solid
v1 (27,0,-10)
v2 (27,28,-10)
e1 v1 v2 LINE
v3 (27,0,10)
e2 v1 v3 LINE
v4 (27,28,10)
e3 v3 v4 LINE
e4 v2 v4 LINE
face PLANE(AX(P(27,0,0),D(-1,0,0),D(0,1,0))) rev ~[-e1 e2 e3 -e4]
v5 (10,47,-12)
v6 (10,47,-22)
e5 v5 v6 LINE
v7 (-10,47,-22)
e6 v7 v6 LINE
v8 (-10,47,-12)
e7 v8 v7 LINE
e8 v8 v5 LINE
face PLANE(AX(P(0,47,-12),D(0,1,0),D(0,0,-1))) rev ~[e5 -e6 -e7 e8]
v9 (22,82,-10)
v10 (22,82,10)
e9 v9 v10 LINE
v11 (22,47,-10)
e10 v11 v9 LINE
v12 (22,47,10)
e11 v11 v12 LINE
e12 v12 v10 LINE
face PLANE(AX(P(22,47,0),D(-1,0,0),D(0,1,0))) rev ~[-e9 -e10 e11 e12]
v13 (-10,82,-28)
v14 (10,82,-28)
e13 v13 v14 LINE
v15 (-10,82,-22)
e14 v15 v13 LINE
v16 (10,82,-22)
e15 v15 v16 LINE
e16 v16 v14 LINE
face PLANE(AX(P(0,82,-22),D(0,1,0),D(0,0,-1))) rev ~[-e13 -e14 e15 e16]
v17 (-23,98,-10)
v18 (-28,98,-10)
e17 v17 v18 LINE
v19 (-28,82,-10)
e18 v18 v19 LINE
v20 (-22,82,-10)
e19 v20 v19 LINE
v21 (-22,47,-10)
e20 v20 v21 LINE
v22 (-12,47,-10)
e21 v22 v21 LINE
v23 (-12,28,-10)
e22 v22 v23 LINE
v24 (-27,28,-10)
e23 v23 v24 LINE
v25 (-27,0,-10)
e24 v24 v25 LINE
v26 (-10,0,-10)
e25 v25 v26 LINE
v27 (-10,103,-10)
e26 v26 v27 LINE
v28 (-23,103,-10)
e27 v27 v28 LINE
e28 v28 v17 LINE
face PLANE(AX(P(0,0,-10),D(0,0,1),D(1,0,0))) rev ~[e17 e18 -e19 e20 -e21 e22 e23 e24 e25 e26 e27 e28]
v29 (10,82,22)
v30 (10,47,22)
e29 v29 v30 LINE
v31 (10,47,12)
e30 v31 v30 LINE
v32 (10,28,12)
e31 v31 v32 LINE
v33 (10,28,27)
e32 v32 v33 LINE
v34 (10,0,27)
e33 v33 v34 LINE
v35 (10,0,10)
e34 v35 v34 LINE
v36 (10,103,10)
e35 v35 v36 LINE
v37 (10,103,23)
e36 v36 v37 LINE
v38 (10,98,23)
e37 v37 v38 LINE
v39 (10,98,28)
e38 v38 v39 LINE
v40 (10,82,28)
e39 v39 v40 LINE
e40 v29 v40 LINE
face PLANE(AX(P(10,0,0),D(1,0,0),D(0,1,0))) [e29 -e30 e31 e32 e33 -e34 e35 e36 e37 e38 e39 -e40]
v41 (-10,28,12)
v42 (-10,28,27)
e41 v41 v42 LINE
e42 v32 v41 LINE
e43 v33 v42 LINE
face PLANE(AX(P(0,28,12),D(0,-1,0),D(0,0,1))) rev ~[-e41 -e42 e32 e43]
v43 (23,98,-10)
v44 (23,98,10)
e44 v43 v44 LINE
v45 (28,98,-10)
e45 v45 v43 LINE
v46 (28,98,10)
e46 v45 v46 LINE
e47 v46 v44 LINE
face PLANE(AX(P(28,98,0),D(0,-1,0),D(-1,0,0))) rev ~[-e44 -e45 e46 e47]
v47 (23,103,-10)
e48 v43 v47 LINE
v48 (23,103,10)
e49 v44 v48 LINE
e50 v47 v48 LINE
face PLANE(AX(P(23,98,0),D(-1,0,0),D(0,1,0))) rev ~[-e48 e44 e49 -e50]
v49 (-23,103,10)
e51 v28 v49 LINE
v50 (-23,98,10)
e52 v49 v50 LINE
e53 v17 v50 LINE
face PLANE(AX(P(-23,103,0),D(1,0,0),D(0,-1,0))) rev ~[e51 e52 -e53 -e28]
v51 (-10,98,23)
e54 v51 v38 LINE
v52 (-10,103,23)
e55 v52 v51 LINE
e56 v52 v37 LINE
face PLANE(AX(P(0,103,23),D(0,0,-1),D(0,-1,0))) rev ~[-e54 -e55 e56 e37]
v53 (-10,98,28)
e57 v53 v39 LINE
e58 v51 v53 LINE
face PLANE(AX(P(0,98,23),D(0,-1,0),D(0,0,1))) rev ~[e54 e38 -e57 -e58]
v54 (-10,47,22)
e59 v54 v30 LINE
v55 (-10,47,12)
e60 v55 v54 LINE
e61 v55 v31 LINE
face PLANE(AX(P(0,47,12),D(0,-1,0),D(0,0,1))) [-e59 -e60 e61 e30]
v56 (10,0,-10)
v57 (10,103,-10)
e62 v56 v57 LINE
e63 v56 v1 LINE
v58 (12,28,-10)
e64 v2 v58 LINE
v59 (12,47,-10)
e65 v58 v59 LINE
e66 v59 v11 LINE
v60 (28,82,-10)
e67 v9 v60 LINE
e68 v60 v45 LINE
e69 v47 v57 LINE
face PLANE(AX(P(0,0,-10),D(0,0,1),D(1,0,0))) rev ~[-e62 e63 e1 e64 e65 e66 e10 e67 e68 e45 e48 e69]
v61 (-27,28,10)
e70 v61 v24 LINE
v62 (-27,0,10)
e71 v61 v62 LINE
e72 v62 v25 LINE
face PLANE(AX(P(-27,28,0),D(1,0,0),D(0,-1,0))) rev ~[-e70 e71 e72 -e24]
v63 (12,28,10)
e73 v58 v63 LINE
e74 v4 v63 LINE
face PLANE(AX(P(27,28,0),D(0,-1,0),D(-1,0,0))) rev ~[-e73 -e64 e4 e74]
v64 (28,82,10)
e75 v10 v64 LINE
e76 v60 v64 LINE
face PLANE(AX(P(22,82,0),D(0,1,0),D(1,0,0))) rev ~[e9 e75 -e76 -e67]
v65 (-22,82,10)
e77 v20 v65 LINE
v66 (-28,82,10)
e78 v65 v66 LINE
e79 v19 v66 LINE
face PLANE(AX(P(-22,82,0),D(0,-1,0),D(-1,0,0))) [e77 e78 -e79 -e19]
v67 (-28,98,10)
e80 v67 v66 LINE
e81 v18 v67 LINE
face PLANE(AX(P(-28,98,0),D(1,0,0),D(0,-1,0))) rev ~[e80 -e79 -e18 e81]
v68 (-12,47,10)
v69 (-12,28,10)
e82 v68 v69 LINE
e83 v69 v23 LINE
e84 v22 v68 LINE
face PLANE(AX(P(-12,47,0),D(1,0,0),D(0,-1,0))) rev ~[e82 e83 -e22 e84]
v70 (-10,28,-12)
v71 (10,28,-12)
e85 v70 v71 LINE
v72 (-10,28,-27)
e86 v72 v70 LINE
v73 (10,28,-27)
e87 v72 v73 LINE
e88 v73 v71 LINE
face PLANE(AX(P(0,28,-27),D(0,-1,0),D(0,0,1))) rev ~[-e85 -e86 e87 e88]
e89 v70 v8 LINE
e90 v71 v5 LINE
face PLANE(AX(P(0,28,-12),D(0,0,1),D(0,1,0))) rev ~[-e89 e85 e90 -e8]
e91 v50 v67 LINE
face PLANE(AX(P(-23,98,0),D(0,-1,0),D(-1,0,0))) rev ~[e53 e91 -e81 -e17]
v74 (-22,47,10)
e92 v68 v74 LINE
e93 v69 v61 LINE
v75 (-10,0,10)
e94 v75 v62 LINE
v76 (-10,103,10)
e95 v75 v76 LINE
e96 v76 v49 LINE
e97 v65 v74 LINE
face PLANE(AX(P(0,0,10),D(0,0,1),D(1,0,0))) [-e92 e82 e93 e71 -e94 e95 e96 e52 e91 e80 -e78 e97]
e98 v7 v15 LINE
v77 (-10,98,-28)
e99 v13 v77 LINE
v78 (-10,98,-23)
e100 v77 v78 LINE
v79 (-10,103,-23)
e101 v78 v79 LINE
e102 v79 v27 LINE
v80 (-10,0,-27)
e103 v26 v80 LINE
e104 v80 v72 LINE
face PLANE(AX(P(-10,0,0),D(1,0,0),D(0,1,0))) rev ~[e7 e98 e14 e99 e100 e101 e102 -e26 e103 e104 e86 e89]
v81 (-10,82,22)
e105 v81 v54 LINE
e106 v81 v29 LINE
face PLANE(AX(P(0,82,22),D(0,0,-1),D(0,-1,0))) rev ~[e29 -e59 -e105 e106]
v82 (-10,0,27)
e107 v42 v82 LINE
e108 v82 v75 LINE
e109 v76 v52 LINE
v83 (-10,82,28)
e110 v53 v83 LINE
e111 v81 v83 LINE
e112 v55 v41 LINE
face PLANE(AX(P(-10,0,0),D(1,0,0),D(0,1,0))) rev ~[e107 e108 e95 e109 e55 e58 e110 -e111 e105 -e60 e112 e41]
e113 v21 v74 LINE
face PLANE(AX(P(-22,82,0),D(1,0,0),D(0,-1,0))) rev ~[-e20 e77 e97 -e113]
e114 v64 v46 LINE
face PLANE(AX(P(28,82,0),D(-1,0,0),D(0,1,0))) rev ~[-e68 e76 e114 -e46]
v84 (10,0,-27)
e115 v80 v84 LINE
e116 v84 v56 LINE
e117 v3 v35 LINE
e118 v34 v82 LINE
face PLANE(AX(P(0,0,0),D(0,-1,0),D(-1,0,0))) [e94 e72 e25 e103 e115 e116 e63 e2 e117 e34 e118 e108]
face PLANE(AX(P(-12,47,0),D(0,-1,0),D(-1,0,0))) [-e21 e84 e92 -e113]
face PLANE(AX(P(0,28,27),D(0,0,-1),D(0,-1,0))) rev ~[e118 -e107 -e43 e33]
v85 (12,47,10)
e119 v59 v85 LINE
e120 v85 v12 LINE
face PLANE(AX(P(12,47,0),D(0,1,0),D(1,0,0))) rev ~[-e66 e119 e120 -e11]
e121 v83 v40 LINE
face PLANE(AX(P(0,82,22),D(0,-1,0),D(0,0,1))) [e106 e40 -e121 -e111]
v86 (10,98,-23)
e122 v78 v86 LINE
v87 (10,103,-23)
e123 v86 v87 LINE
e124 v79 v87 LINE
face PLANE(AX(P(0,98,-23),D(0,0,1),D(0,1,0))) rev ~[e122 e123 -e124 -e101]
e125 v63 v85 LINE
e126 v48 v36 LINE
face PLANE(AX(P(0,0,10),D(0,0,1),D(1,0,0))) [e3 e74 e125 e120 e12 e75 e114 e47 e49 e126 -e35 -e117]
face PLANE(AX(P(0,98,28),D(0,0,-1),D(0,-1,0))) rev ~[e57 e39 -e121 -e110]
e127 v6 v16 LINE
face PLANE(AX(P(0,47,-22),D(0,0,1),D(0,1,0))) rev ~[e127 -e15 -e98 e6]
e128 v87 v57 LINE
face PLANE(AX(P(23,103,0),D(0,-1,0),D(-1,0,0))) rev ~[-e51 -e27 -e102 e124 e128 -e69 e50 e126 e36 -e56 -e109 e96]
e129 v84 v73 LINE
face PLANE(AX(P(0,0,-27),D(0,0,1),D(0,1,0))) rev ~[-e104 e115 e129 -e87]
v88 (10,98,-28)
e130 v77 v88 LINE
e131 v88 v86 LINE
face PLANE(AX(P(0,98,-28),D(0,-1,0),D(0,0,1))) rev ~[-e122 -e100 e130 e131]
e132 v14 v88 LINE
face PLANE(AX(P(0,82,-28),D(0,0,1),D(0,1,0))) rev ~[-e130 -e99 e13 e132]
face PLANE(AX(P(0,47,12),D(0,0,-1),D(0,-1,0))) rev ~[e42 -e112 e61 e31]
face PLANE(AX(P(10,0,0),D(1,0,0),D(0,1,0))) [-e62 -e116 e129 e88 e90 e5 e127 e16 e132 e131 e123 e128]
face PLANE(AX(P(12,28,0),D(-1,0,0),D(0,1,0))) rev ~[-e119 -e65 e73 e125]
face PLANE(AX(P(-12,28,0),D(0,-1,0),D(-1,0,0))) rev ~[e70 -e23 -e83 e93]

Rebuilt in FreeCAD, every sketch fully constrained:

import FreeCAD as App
import Part
import Sketcher
from FreeCAD import Vector

doc = App.newDocument("Part")
body = doc.addObject("PartDesign::Body", "Body")

# Sketch on XY plane
sketch1 = doc.addObject("Sketcher::SketchObject", "Sketch")
body.addObject(sketch1)
sketch1.AttachmentSupport = (doc.XY_Plane, [""])
sketch1.MapMode = "FlatFace"
sketch1.addGeometry([
    Part.LineSegment(Vector(-27, 0, 0), Vector(27, 0, 0)),  # 0
    Part.LineSegment(Vector(27, 0, 0), Vector(27, 28, 0)),  # 1
    Part.LineSegment(Vector(27, 28, 0), Vector(12, 28, 0)),  # 2
    Part.LineSegment(Vector(12, 28, 0), Vector(12, 47, 0)),  # 3
    Part.LineSegment(Vector(12, 47, 0), Vector(22, 47, 0)),  # 4
    Part.LineSegment(Vector(22, 47, 0), Vector(22, 82, 0)),  # 5
    Part.LineSegment(Vector(22, 82, 0), Vector(28, 82, 0)),  # 6
    Part.LineSegment(Vector(28, 82, 0), Vector(28, 98, 0)),  # 7
    Part.LineSegment(Vector(28, 98, 0), Vector(23, 98, 0)),  # 8
    Part.LineSegment(Vector(23, 98, 0), Vector(23, 103, 0)),  # 9
    Part.LineSegment(Vector(23, 103, 0), Vector(-23, 103, 0)),  # 10
    Part.LineSegment(Vector(-23, 103, 0), Vector(-23, 98, 0)),  # 11
    Part.LineSegment(Vector(-23, 98, 0), Vector(-28, 98, 0)),  # 12
    Part.LineSegment(Vector(-28, 98, 0), Vector(-28, 82, 0)),  # 13
    Part.LineSegment(Vector(-28, 82, 0), Vector(-22, 82, 0)),  # 14
    Part.LineSegment(Vector(-22, 82, 0), Vector(-22, 47, 0)),  # 15
    Part.LineSegment(Vector(-22, 47, 0), Vector(-12, 47, 0)),  # 16
    Part.LineSegment(Vector(-12, 47, 0), Vector(-12, 28, 0)),  # 17
    Part.LineSegment(Vector(-12, 28, 0), Vector(-27, 28, 0)),  # 18
    Part.LineSegment(Vector(-27, 28, 0), Vector(-27, 0, 0)),  # 19
], False)
sketch1.addConstraint([
    Sketcher.Constraint("Coincident", 0, 2, 1, 1),
    Sketcher.Constraint("Coincident", 1, 2, 2, 1),
    Sketcher.Constraint("Coincident", 2, 2, 3, 1),
    Sketcher.Constraint("Coincident", 3, 2, 4, 1),
    Sketcher.Constraint("Coincident", 4, 2, 5, 1),
    Sketcher.Constraint("Coincident", 5, 2, 6, 1),
    Sketcher.Constraint("Coincident", 6, 2, 7, 1),
    Sketcher.Constraint("Coincident", 7, 2, 8, 1),
    Sketcher.Constraint("Coincident", 8, 2, 9, 1),
    Sketcher.Constraint("Coincident", 9, 2, 10, 1),
    Sketcher.Constraint("Coincident", 10, 2, 11, 1),
    Sketcher.Constraint("Coincident", 11, 2, 12, 1),
    Sketcher.Constraint("Coincident", 12, 2, 13, 1),
    Sketcher.Constraint("Coincident", 13, 2, 14, 1),
    Sketcher.Constraint("Coincident", 14, 2, 15, 1),
    Sketcher.Constraint("Coincident", 15, 2, 16, 1),
    Sketcher.Constraint("Coincident", 16, 2, 17, 1),
    Sketcher.Constraint("Coincident", 17, 2, 18, 1),
    Sketcher.Constraint("Coincident", 18, 2, 19, 1),
    Sketcher.Constraint("Coincident", 19, 2, 0, 1),
    Sketcher.Constraint("Horizontal", 0),
    Sketcher.Constraint("Vertical", 1),
    Sketcher.Constraint("Horizontal", 2),
    Sketcher.Constraint("Vertical", 3),
    Sketcher.Constraint("Horizontal", 4),
    Sketcher.Constraint("Vertical", 5),
    Sketcher.Constraint("Horizontal", 6),
    Sketcher.Constraint("Vertical", 7),
    Sketcher.Constraint("Horizontal", 8),
    Sketcher.Constraint("Vertical", 9),
    Sketcher.Constraint("Horizontal", 10),
    Sketcher.Constraint("Vertical", 11),
    Sketcher.Constraint("Horizontal", 12),
    Sketcher.Constraint("Vertical", 13),
    Sketcher.Constraint("Horizontal", 14),
    Sketcher.Constraint("Vertical", 15),
    Sketcher.Constraint("Horizontal", 16),
    Sketcher.Constraint("Vertical", 17),
    Sketcher.Constraint("Horizontal", 18),
    Sketcher.Constraint("Vertical", 19),
    Sketcher.Constraint("Symmetric", 0, 2, 19, 2, -1, 1),
    Sketcher.Constraint("Symmetric", 8, 2, 11, 2, -2),
    Sketcher.Constraint("Symmetric", 6, 2, 13, 2, -2),
    Sketcher.Constraint("Symmetric", 4, 2, 15, 2, -2),
    Sketcher.Constraint("Symmetric", 2, 2, 17, 2, -2),
    Sketcher.Constraint("Equal", 12, 9),
    Sketcher.Constraint("DistanceX", 0, 1, 0, 2, 54.0),
    Sketcher.Constraint("DistanceX", 6, 1, 6, 2, 6.0),
    Sketcher.Constraint("DistanceX", 8, 2, 8, 1, 5.0),
    Sketcher.Constraint("DistanceX", 10, 2, 10, 1, 46.0),
    Sketcher.Constraint("DistanceY", 1, 1, 1, 2, 28.0),
    Sketcher.Constraint("DistanceY", 3, 1, 3, 2, 19.0),
    Sketcher.Constraint("DistanceY", 5, 1, 5, 2, 35.0),
    Sketcher.Constraint("DistanceY", 7, 1, 7, 2, 16.0),
    Sketcher.Constraint("DistanceX", -1, 1, 2, 2, 12.0),
])
pad1 = doc.addObject("PartDesign::Pad", "Pad")
body.addObject(pad1)
pad1.Profile = sketch1
pad1.Length = 20
pad1.Midplane = True

# Sketch on YZ plane
sketch2 = doc.addObject("Sketcher::SketchObject", "Sketch001")
body.addObject(sketch2)
sketch2.AttachmentSupport = (doc.YZ_Plane, [""])
sketch2.MapMode = "FlatFace"
sketch2.addGeometry([
    Part.LineSegment(Vector(0, 27, 0), Vector(0, -27, 0)),  # 0
    Part.LineSegment(Vector(0, -27, 0), Vector(28, -27, 0)),  # 1
    Part.LineSegment(Vector(28, -27, 0), Vector(28, -12, 0)),  # 2
    Part.LineSegment(Vector(28, -12, 0), Vector(47, -12, 0)),  # 3
    Part.LineSegment(Vector(47, -12, 0), Vector(47, -22, 0)),  # 4
    Part.LineSegment(Vector(47, -22, 0), Vector(82, -22, 0)),  # 5
    Part.LineSegment(Vector(82, -22, 0), Vector(82, -28, 0)),  # 6
    Part.LineSegment(Vector(82, -28, 0), Vector(98, -28, 0)),  # 7
    Part.LineSegment(Vector(98, -28, 0), Vector(98, -23, 0)),  # 8
    Part.LineSegment(Vector(98, -23, 0), Vector(103, -23, 0)),  # 9
    Part.LineSegment(Vector(103, -23, 0), Vector(103, 23, 0)),  # 10
    Part.LineSegment(Vector(103, 23, 0), Vector(98, 23, 0)),  # 11
    Part.LineSegment(Vector(98, 23, 0), Vector(98, 28, 0)),  # 12
    Part.LineSegment(Vector(98, 28, 0), Vector(82, 28, 0)),  # 13
    Part.LineSegment(Vector(82, 28, 0), Vector(82, 22, 0)),  # 14
    Part.LineSegment(Vector(82, 22, 0), Vector(47, 22, 0)),  # 15
    Part.LineSegment(Vector(47, 22, 0), Vector(47, 12, 0)),  # 16
    Part.LineSegment(Vector(47, 12, 0), Vector(28, 12, 0)),  # 17
    Part.LineSegment(Vector(28, 12, 0), Vector(28, 27, 0)),  # 18
    Part.LineSegment(Vector(28, 27, 0), Vector(0, 27, 0)),  # 19
], False)
sketch2.addConstraint([
    Sketcher.Constraint("Coincident", 0, 2, 1, 1),
    Sketcher.Constraint("Coincident", 1, 2, 2, 1),
    Sketcher.Constraint("Coincident", 2, 2, 3, 1),
    Sketcher.Constraint("Coincident", 3, 2, 4, 1),
    Sketcher.Constraint("Coincident", 4, 2, 5, 1),
    Sketcher.Constraint("Coincident", 5, 2, 6, 1),
    Sketcher.Constraint("Coincident", 6, 2, 7, 1),
    Sketcher.Constraint("Coincident", 7, 2, 8, 1),
    Sketcher.Constraint("Coincident", 8, 2, 9, 1),
    Sketcher.Constraint("Coincident", 9, 2, 10, 1),
    Sketcher.Constraint("Coincident", 10, 2, 11, 1),
    Sketcher.Constraint("Coincident", 11, 2, 12, 1),
    Sketcher.Constraint("Coincident", 12, 2, 13, 1),
    Sketcher.Constraint("Coincident", 13, 2, 14, 1),
    Sketcher.Constraint("Coincident", 14, 2, 15, 1),
    Sketcher.Constraint("Coincident", 15, 2, 16, 1),
    Sketcher.Constraint("Coincident", 16, 2, 17, 1),
    Sketcher.Constraint("Coincident", 17, 2, 18, 1),
    Sketcher.Constraint("Coincident", 18, 2, 19, 1),
    Sketcher.Constraint("Coincident", 19, 2, 0, 1),
    Sketcher.Constraint("Vertical", 0),
    Sketcher.Constraint("Horizontal", 1),
    Sketcher.Constraint("Vertical", 2),
    Sketcher.Constraint("Horizontal", 3),
    Sketcher.Constraint("Vertical", 4),
    Sketcher.Constraint("Horizontal", 5),
    Sketcher.Constraint("Vertical", 6),
    Sketcher.Constraint("Horizontal", 7),
    Sketcher.Constraint("Vertical", 8),
    Sketcher.Constraint("Horizontal", 9),
    Sketcher.Constraint("Vertical", 10),
    Sketcher.Constraint("Horizontal", 11),
    Sketcher.Constraint("Vertical", 12),
    Sketcher.Constraint("Horizontal", 13),
    Sketcher.Constraint("Vertical", 14),
    Sketcher.Constraint("Horizontal", 15),
    Sketcher.Constraint("Vertical", 16),
    Sketcher.Constraint("Horizontal", 17),
    Sketcher.Constraint("Vertical", 18),
    Sketcher.Constraint("Horizontal", 19),
    Sketcher.Constraint("Symmetric", 0, 2, 19, 2, -1, 1),
    Sketcher.Constraint("Symmetric", 8, 2, 11, 2, -1),
    Sketcher.Constraint("Symmetric", 6, 2, 13, 2, -1),
    Sketcher.Constraint("Symmetric", 4, 2, 15, 2, -1),
    Sketcher.Constraint("Symmetric", 2, 2, 17, 2, -1),
    Sketcher.Constraint("Equal", 11, 8),
    Sketcher.Constraint("DistanceX", 1, 1, 1, 2, 28.0),
    Sketcher.Constraint("DistanceX", 3, 1, 3, 2, 19.0),
    Sketcher.Constraint("DistanceX", 5, 1, 5, 2, 35.0),
    Sketcher.Constraint("DistanceX", 7, 1, 7, 2, 16.0),
    Sketcher.Constraint("DistanceX", 9, 1, 9, 2, 5.0),
    Sketcher.Constraint("DistanceY", 0, 2, 0, 1, 54.0),
    Sketcher.Constraint("DistanceY", 6, 2, 6, 1, 6.0),
    Sketcher.Constraint("DistanceY", 10, 1, 10, 2, 46.0),
    Sketcher.Constraint("DistanceY", 2, 2, -1, 1, 12.0),
])
pad2 = doc.addObject("PartDesign::Pad", "Pad001")
body.addObject(pad2)
pad2.Profile = sketch2
pad2.Length = 20
pad2.Midplane = True

doc.recompute()
